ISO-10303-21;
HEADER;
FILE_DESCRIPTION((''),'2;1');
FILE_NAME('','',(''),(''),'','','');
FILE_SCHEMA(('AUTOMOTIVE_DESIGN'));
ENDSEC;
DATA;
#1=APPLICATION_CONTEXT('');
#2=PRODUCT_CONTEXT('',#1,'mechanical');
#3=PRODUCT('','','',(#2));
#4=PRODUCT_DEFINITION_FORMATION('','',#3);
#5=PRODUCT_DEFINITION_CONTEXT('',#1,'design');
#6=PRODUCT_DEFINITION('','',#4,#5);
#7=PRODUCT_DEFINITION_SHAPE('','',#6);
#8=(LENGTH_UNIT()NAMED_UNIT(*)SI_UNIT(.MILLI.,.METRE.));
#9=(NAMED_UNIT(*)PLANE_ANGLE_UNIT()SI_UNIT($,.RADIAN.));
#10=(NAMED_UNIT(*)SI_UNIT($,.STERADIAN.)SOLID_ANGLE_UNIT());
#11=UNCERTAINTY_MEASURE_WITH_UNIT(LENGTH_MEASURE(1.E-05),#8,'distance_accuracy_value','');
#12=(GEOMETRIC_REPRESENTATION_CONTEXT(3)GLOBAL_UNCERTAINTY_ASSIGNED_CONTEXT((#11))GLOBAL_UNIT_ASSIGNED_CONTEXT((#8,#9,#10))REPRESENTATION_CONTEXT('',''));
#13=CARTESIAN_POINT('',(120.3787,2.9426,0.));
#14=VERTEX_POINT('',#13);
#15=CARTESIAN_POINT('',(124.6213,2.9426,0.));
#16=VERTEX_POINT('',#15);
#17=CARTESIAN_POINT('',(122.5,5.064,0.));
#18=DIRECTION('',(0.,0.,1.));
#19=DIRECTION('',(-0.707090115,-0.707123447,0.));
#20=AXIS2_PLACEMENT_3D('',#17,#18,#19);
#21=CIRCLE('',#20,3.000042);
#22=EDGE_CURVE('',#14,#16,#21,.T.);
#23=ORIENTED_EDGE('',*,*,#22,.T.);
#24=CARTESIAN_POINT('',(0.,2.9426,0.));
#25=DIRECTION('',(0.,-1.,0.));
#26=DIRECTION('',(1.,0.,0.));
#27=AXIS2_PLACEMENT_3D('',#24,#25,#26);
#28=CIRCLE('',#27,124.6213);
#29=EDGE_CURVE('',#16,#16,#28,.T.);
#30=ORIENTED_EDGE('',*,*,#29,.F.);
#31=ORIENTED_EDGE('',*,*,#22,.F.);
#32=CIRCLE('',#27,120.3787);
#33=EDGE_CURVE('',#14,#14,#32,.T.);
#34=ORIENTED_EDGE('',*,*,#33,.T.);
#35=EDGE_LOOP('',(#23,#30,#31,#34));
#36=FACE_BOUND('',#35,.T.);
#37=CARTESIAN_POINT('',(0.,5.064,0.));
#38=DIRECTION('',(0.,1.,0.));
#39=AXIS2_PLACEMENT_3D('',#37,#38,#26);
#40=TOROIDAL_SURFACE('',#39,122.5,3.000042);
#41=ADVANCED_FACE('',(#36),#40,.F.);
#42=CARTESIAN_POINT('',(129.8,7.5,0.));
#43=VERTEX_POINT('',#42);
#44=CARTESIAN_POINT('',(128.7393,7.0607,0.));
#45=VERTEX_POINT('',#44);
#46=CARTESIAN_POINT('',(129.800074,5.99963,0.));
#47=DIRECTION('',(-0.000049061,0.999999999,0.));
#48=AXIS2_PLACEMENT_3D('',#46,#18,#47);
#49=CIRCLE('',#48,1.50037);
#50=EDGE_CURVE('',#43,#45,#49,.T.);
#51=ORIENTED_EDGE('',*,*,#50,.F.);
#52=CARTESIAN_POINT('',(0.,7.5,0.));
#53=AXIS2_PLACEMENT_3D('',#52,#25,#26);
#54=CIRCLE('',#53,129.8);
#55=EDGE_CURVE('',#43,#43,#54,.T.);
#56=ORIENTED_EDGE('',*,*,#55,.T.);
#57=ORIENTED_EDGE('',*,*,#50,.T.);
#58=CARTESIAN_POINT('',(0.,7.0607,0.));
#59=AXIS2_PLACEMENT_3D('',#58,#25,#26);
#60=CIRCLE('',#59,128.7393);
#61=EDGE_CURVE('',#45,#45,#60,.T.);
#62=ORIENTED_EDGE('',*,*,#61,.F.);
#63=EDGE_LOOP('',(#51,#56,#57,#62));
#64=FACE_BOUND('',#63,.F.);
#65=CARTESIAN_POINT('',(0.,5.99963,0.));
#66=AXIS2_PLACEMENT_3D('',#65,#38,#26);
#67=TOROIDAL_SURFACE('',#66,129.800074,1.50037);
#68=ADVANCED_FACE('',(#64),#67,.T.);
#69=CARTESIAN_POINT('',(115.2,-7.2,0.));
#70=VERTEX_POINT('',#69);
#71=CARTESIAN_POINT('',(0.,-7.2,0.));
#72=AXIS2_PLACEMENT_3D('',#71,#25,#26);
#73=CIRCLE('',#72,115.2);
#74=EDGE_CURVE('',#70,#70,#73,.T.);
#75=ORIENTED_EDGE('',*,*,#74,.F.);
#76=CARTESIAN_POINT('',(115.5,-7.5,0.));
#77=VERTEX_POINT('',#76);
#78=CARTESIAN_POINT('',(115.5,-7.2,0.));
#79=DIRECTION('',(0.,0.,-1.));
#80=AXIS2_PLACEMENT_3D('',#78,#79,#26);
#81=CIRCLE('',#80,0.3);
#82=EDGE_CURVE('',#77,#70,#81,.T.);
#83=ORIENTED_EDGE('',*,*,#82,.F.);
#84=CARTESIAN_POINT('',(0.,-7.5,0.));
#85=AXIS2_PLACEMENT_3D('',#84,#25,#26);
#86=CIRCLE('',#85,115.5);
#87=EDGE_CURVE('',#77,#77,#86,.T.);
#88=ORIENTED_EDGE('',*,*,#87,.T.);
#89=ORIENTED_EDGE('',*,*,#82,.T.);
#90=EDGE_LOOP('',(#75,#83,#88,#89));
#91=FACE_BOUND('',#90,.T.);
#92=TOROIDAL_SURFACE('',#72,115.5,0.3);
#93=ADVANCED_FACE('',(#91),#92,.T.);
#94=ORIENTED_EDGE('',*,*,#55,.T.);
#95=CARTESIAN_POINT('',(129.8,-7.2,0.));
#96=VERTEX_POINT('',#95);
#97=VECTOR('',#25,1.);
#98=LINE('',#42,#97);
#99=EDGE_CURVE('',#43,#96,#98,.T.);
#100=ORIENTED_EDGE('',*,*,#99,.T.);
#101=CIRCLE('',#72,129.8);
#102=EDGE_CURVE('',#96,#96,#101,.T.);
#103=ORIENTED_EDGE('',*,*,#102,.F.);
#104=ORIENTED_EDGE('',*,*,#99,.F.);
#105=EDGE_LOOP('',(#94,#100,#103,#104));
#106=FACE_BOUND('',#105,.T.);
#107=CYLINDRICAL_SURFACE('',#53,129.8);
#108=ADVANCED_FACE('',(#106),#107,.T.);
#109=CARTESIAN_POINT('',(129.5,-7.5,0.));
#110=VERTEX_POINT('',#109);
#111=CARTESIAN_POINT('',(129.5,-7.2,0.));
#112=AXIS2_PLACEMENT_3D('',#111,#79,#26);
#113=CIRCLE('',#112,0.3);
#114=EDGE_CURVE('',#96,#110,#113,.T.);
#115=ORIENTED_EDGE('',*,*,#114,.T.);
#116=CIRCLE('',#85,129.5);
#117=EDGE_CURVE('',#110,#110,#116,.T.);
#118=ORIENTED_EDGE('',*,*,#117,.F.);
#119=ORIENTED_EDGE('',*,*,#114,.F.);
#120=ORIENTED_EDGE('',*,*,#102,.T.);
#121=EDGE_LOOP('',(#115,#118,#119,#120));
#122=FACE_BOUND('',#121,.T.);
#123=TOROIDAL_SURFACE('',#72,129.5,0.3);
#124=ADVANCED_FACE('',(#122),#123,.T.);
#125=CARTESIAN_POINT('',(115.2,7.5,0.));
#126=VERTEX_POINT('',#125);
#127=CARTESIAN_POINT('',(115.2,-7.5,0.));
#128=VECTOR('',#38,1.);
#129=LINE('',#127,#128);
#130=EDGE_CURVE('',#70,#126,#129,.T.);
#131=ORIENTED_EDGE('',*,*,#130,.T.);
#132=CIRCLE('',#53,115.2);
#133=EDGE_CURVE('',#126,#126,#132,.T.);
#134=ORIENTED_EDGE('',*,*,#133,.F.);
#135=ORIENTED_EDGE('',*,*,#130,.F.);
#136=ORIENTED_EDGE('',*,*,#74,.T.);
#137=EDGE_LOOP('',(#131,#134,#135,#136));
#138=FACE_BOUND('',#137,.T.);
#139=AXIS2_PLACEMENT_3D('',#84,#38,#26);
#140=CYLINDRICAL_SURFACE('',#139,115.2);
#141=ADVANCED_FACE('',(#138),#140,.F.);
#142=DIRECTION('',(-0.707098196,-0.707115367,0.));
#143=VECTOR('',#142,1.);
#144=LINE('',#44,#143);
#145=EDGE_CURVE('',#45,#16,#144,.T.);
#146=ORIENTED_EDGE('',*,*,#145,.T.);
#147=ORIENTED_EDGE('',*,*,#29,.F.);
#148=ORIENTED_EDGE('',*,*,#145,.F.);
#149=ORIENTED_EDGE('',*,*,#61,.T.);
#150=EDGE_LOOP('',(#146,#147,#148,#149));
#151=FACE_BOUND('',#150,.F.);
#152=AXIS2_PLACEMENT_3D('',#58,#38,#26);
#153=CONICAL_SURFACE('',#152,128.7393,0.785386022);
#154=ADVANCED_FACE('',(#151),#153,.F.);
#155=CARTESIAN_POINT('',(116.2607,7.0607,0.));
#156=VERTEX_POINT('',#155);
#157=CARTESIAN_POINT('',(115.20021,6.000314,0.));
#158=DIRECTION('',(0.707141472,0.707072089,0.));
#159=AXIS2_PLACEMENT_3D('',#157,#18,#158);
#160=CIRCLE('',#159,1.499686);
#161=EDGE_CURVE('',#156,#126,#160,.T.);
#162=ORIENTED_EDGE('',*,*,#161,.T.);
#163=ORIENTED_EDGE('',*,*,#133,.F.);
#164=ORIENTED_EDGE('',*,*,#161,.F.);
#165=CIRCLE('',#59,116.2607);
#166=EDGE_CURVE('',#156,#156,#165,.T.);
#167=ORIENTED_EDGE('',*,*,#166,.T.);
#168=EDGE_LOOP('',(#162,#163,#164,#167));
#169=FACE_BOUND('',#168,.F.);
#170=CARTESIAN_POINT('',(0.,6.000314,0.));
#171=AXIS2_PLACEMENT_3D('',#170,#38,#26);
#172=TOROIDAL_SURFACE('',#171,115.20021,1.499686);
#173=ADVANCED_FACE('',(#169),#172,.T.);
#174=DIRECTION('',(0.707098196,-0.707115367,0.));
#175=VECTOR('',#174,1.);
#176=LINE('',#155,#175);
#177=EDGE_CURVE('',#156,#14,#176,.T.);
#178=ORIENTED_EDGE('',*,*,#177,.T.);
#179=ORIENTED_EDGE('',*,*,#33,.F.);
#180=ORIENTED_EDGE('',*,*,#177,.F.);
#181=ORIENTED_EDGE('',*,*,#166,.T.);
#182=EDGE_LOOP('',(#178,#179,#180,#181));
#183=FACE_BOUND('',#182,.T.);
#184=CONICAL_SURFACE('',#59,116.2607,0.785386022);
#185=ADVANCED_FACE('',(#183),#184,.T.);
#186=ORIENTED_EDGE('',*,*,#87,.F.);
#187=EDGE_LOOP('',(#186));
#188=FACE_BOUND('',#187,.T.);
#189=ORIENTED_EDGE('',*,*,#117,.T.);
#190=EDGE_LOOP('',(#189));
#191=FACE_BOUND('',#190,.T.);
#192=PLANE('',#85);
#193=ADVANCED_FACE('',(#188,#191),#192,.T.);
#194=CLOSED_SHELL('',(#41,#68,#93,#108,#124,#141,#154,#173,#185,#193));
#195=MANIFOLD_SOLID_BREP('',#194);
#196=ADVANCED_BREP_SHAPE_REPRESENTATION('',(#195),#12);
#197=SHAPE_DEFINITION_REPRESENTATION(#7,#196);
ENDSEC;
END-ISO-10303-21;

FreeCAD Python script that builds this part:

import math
import FreeCAD as App
import Part
import Sketcher


def edges_at(feature, points):
    """Names of the edges that pass closest to the given points."""
    edges = feature.Shape.Edges
    near = lambda p: min(range(len(edges)), key=lambda i: edges[i].distToShape(Part.Vertex(*p))[0])
    return sorted({f"Edge{near(p) + 1}" for p in points})

doc = App.newDocument("Part")
params = doc.addObject("Spreadsheet::Sheet", "Params")
for row, (alias, value) in enumerate([
    ("sketch1_radius", "3 mm"),
    ("sketch1_radius2", "1.5 mm"),
    ("sketch1_height", "15 mm"),
    ("sketch1_width", "14.6 mm"),
    ("revolution_angle", "360 deg"),
    ("fillet_radius", "0.3 mm"),
], start=1):
    params.set(f"A{row}", alias)
    params.set(f"B{row}", "=" + value)
    params.setAlias(f"B{row}", alias)

body = doc.addObject("PartDesign::Body", "Body")

# Sketch on XY plane
sketch1 = body.newObject("Sketcher::SketchObject", "Sketch")
sketch1.AttachmentSupport = (doc.getObject("XY_Plane"), [""])
sketch1.MapMode = "FlatFace"
sketch1.addGeometry([
    Part.LineSegment(App.Vector(129.8, -7.5, 0), App.Vector(129.8, 7.5, 0)),  # 0
    Part.ArcOfCircle(Part.Circle(App.Vector(129.8, 6, 0), App.Vector(0, 0, 1), 1.5), math.radians(90), math.radians(135)),  # 1
    Part.LineSegment(App.Vector(128.7, 7.1, 0), App.Vector(124.6, 2.9, 0)),  # 2
    Part.ArcOfCircle(Part.Circle(App.Vector(122.5, 5.1, 0), App.Vector(0, 0, 1), 3), math.radians(-135), math.radians(-45)),  # 3
    Part.LineSegment(App.Vector(120.4, 2.9, 0), App.Vector(116.3, 7.1, 0)),  # 4
    Part.ArcOfCircle(Part.Circle(App.Vector(115.2, 6, 0), App.Vector(0, 0, 1), 1.5), math.radians(45), math.radians(90)),  # 5
    Part.LineSegment(App.Vector(115.2, 7.5, 0), App.Vector(115.2, -7.5, 0)),  # 6
    Part.LineSegment(App.Vector(115.2, -7.5, 0), App.Vector(129.8, -7.5, 0)),  # 7
], False)
sketch1.addConstraint([
    Sketcher.Constraint("Coincident", 0, 2, 1, 1),
    Sketcher.Constraint("Tangent", 1, 2, 2, 1),
    Sketcher.Constraint("Tangent", 2, 2, 3, 2),
    Sketcher.Constraint("Tangent", 3, 1, 4, 1),
    Sketcher.Constraint("Tangent", 4, 2, 5, 1),
    Sketcher.Constraint("Coincident", 5, 2, 6, 1),
    Sketcher.Constraint("Coincident", 6, 2, 7, 1),
    Sketcher.Constraint("Coincident", 7, 2, 0, 1),
    Sketcher.Constraint("Vertical", 0),
    Sketcher.Constraint("Vertical", 6),
    Sketcher.Constraint("Horizontal", 7),
    Sketcher.Constraint("Equal", 1, 5),
    Sketcher.Constraint("Perpendicular", 2, 4),
    Sketcher.Constraint("Horizontal", 1, 3, 5, 3),
    Sketcher.Constraint("Horizontal", 2, 2, 3, 1),
    Sketcher.Constraint("Vertical", 1, 3, 0, 2),
    Sketcher.Constraint("Radius", 3, 3.0),
    Sketcher.Constraint("Radius", 1, 1.5),
    Sketcher.Constraint("DistanceY", 0, 1, 0, 2, 15.0),
    Sketcher.Constraint("DistanceX", 7, 1, 7, 2, 14.6),
    Sketcher.Constraint("DistanceX", 5, 3, 1, 3, 14.6),
    Sketcher.Constraint("DistanceY", -1, 1, 1, 3, 6.0),
    Sketcher.Constraint("DistanceX", -1, 1, 1, 3, 129.8),
])
sketch1.setExpression("Constraints[16]", "Params.sketch1_radius")
sketch1.setExpression("Constraints[17]", "Params.sketch1_radius2")
sketch1.setExpression("Constraints[18]", "Params.sketch1_height")
sketch1.setExpression("Constraints[19]", "Params.sketch1_width")
revolution = body.newObject("PartDesign::Revolution", "Revolution")
revolution.Profile = sketch1
revolution.ReferenceAxis = (sketch1, ["V_Axis"])
revolution.setExpression("Angle", "Params.revolution_angle")
doc.recompute()

fillet = body.newObject("PartDesign::Fillet", "Fillet")
fillet.Base = (revolution, edges_at(revolution, [(-129.8, -7.5, 0), (-115.2, -7.5, 0)]))
fillet.setExpression("Radius", "Params.fillet_radius")

doc.recompute()
